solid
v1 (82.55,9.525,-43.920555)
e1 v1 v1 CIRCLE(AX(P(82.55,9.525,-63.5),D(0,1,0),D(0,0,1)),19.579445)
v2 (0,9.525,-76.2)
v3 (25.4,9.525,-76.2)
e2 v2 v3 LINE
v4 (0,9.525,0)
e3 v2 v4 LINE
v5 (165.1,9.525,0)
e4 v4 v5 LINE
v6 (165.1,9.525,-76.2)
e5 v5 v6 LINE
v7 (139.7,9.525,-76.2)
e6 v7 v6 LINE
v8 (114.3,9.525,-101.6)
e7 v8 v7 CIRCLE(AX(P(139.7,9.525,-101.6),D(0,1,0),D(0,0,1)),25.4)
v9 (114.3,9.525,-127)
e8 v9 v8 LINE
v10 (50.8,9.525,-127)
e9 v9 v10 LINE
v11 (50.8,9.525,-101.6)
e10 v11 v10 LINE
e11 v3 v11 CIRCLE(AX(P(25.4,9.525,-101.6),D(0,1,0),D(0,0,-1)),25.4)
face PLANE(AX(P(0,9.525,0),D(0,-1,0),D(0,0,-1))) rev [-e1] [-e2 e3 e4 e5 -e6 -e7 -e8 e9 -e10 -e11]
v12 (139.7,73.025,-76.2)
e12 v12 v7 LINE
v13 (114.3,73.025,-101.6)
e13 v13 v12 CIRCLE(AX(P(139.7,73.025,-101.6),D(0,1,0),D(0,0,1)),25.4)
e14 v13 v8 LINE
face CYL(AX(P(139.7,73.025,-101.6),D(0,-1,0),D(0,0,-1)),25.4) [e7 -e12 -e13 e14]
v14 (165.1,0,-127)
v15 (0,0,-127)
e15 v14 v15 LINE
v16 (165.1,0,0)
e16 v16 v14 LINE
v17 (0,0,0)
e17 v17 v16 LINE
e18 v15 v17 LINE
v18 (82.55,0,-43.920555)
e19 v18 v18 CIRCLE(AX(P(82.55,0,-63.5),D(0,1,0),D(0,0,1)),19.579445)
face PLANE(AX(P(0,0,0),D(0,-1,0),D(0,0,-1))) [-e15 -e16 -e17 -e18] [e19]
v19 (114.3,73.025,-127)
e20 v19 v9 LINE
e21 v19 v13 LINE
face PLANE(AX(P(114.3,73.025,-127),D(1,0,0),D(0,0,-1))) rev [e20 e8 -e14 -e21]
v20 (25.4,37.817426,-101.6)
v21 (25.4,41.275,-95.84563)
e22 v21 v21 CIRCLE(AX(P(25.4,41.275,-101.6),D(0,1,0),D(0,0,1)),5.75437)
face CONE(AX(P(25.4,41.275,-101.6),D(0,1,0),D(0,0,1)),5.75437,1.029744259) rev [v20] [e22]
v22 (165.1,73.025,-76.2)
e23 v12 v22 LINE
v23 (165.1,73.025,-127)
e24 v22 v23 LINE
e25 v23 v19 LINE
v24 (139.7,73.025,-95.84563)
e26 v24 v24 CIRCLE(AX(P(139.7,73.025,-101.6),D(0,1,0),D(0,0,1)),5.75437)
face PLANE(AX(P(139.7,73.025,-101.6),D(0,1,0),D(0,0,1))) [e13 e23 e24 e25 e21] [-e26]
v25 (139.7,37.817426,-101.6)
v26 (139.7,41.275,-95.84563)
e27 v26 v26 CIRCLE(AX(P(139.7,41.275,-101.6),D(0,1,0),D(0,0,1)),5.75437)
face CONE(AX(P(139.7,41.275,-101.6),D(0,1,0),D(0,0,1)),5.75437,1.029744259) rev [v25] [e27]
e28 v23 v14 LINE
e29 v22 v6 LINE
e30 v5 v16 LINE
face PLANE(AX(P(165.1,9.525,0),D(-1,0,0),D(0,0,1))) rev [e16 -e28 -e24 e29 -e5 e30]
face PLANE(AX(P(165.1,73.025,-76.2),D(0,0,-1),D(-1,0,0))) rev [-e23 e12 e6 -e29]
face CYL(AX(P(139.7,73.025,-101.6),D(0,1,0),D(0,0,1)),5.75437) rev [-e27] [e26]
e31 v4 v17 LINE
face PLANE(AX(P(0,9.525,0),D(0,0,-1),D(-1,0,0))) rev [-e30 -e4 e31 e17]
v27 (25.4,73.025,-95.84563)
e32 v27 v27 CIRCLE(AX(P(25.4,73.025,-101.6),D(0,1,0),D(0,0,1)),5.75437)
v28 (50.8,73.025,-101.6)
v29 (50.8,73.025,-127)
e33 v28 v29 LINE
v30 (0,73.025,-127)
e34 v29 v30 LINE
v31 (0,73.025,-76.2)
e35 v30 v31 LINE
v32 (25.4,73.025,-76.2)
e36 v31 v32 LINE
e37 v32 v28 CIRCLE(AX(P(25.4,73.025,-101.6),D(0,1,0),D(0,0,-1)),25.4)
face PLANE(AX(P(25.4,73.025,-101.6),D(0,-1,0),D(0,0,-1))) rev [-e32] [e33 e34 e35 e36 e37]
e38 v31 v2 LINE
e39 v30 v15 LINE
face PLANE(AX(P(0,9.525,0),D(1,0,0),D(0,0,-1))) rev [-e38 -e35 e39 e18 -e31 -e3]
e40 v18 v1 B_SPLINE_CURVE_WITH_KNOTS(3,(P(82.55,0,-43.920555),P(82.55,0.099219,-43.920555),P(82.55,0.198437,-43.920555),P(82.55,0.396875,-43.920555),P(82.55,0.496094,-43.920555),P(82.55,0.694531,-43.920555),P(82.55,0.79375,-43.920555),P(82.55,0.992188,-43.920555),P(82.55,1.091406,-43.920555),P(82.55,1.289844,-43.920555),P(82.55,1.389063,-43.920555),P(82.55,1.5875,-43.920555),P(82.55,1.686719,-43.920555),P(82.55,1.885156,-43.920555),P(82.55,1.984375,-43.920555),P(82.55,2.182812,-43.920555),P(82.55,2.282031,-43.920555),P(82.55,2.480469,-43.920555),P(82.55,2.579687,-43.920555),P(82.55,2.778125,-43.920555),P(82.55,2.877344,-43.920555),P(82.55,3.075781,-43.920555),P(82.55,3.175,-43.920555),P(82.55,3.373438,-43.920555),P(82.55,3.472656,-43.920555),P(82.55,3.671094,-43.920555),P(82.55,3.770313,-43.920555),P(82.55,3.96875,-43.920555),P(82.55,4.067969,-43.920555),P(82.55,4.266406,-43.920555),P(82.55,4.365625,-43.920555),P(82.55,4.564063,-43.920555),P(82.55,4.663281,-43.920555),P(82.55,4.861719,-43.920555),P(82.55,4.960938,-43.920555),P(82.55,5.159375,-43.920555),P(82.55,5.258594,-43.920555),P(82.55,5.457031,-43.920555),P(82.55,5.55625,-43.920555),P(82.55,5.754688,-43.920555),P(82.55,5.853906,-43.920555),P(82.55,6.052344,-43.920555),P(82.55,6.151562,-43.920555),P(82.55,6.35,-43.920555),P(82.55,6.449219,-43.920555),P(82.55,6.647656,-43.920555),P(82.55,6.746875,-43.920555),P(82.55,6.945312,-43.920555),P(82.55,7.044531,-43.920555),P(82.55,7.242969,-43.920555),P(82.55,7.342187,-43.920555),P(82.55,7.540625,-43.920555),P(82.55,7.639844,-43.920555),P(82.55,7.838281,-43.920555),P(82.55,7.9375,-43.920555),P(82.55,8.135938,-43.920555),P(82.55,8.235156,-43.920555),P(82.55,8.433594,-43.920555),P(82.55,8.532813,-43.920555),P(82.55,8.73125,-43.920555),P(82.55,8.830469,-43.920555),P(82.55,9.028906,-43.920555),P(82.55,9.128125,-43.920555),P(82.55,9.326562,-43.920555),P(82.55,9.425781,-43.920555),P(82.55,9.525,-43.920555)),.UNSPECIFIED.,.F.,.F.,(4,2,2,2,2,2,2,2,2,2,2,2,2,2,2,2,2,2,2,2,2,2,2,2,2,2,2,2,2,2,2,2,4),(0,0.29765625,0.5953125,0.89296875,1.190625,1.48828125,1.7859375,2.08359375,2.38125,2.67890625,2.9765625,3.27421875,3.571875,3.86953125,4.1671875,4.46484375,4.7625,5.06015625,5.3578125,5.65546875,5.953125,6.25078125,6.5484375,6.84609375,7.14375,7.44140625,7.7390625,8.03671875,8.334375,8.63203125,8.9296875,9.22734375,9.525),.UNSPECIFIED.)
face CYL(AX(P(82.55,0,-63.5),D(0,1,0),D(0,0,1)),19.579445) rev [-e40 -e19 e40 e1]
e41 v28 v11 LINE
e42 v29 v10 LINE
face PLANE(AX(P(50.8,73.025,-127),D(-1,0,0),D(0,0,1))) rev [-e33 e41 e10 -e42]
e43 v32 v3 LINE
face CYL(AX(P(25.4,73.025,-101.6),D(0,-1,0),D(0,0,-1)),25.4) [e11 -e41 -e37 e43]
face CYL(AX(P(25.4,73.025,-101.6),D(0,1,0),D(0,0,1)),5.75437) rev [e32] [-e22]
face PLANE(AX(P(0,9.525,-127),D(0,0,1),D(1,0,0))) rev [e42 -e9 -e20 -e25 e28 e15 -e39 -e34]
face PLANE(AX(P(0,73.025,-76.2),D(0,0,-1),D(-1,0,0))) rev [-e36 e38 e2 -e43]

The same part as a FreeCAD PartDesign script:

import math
import FreeCAD as App
import Part
import Sketcher
Q = App.Units.Quantity

doc = App.newDocument("Part")
params = doc.addObject("Spreadsheet::Sheet", "Params")
for row, (alias, value) in enumerate([
    ("sketch1_height", "5 in"),
    ("sketch1_width", "6.5 in"),
    ("pad1_length", "0.375 in"),
    ("sketch3_radius", "1 in"),
    ("sketch3_width", "2 in"),
    ("pad2_length", "2.5 in"),
    ("hole_diameter", "0.4531 in"),
    ("hole_depth", "1.25 in"),
], start=1):
    params.set(f"A{row}", alias)
    params.set(f"B{row}", "=" + value)
    params.setAlias(f"B{row}", alias)

body = doc.addObject("PartDesign::Body", "Body")

sketch1 = body.newObject("Sketcher::SketchObject", "Sketch")
sketch1.AttachmentSupport = (doc.getObject("XZ_Plane"), [""])
sketch1.MapMode = "FlatFace"
sketch1.addGeometry(Part.LineSegment(App.Vector(0, -127, 0), App.Vector(0, 0, 0)), False)
sketch1.addGeometry(Part.LineSegment(App.Vector(0, 0, 0), App.Vector(165, 0, 0)), False)
sketch1.addGeometry(Part.LineSegment(App.Vector(165, 0, 0), App.Vector(165, -127, 0)), False)
sketch1.addGeometry(Part.LineSegment(App.Vector(165, -127, 0), App.Vector(0, -127, 0)), False)
sketch1.addConstraint(Sketcher.Constraint("Coincident", 0, 2, 1, 1))
sketch1.addConstraint(Sketcher.Constraint("Coincident", 1, 2, 2, 1))
sketch1.addConstraint(Sketcher.Constraint("Coincident", 2, 2, 3, 1))
sketch1.addConstraint(Sketcher.Constraint("Coincident", 3, 2, 0, 1))
sketch1.addConstraint(Sketcher.Constraint("Vertical", 0))
sketch1.addConstraint(Sketcher.Constraint("Horizontal", 1))
sketch1.addConstraint(Sketcher.Constraint("Vertical", 2))
sketch1.addConstraint(Sketcher.Constraint("Horizontal", 3))
sketch1.addConstraint(Sketcher.Constraint("Coincident", 0, 2, -1, 1))
sketch1.addConstraint(Sketcher.Constraint("DistanceY", 0, 1, 0, 2, Q("5 in")))
sketch1.addConstraint(Sketcher.Constraint("DistanceX", 1, 1, 1, 2, Q("6.5 in")))
sketch1.setExpression("Constraints[9]", "Params.sketch1_height")
sketch1.setExpression("Constraints[10]", "Params.sketch1_width")
pad1 = body.newObject("PartDesign::Pad", "Pad")
pad1.Profile = sketch1
pad1.setExpression("Length", "Params.pad1_length")
pad1.Reversed = True

sketch2 = body.newObject("Sketcher::SketchObject", "Sketch001")
sketch2.AttachmentSupport = (doc.getObject("XZ_Plane"), [""])
sketch2.MapMode = "FlatFace"
sketch2.AttachmentOffset = App.Placement(App.Vector(0, 0, -0.375 * 25.4), App.Rotation())
sketch2.addGeometry(Part.Circle(App.Vector(83, -64, 0), App.Vector(0, 0, 1), 20), False)
sketch2.addConstraint(Sketcher.Constraint("DistanceY", 0, 3, -1, 1, Q("2.5 in")))
sketch2.addConstraint(Sketcher.Constraint("DistanceX", -1, 1, 0, 3, Q("3.25 in")))
sketch2.addConstraint(Sketcher.Constraint("Diameter", 0, 39.15889))
pocket1 = body.newObject("PartDesign::Pocket", "Pocket")
pocket1.Profile = sketch2
pocket1.Type = "ThroughAll"
pocket1.Reversed = True

sketch3 = body.newObject("Sketcher::SketchObject", "Sketch002")
sketch3.AttachmentSupport = (doc.getObject("XZ_Plane"), [""])
sketch3.MapMode = "FlatFace"
sketch3.AttachmentOffset = App.Placement(App.Vector(0, 0, -0.375 * 25.4), App.Rotation())
sketch3.addGeometry(Part.LineSegment(App.Vector(51, -127, 0), App.Vector(0, -127, 0)), False)
sketch3.addGeometry(Part.LineSegment(App.Vector(0, -127, 0), App.Vector(0, -76, 0)), False)
sketch3.addGeometry(Part.LineSegment(App.Vector(0, -76, 0), App.Vector(25, -76, 0)), False)
sketch3.addGeometry(Part.ArcOfCircle(Part.Circle(App.Vector(25, -102, 0), App.Vector(0, 0, 1), 25), math.radians(0), math.radians(90)), False)
sketch3.addGeometry(Part.LineSegment(App.Vector(51, -102, 0), App.Vector(51, -127, 0)), False)
sketch3.addGeometry(Part.LineSegment(App.Vector(165, -127, 0), App.Vector(114, -127, 0)), False)
sketch3.addGeometry(Part.LineSegment(App.Vector(114, -127, 0), App.Vector(114, -102, 0)), False)
sketch3.addGeometry(Part.ArcOfCircle(Part.Circle(App.Vector(140, -102, 0), App.Vector(0, 0, 1), 25), math.radians(90), math.radians(180)), False)
sketch3.addGeometry(Part.LineSegment(App.Vector(140, -76, 0), App.Vector(165, -76, 0)), False)
sketch3.addGeometry(Part.LineSegment(App.Vector(165, -76, 0), App.Vector(165, -127, 0)), False)
sketch3.addConstraint(Sketcher.Constraint("Coincident", 0, 2, 1, 1))
sketch3.addConstraint(Sketcher.Constraint("Coincident", 1, 2, 2, 1))
sketch3.addConstraint(Sketcher.Constraint("Tangent", 2, 2, 3, 2))
sketch3.addConstraint(Sketcher.Constraint("Tangent", 3, 1, 4, 1))
sketch3.addConstraint(Sketcher.Constraint("Coincident", 4, 2, 0, 1))
sketch3.addConstraint(Sketcher.Constraint("Coincident", 5, 2, 6, 1))
sketch3.addConstraint(Sketcher.Constraint("Tangent", 6, 2, 7, 2))
sketch3.addConstraint(Sketcher.Constraint("Tangent", 7, 1, 8, 1))
sketch3.addConstraint(Sketcher.Constraint("Coincident", 8, 2, 9, 1))
sketch3.addConstraint(Sketcher.Constraint("Coincident", 9, 2, 5, 1))
sketch3.addConstraint(Sketcher.Constraint("Horizontal", 0))
sketch3.addConstraint(Sketcher.Constraint("Vertical", 1))
sketch3.addConstraint(Sketcher.Constraint("Horizontal", 2))
sketch3.addConstraint(Sketcher.Constraint("Vertical", 4))
sketch3.addConstraint(Sketcher.Constraint("Horizontal", 5))
sketch3.addConstraint(Sketcher.Constraint("Vertical", 6))
sketch3.addConstraint(Sketcher.Constraint("Horizontal", 8))
sketch3.addConstraint(Sketcher.Constraint("Vertical", 9))
sketch3.addConstraint(Sketcher.Constraint("Equal", 3, 7))
sketch3.addConstraint(Sketcher.Constraint("PointOnObject", 0, 2, -2))
sketch3.addConstraint(Sketcher.Constraint("Horizontal", 3, 3, 7, 3))
sketch3.addConstraint(Sketcher.Constraint("Horizontal", 4, 2, 5, 2))
sketch3.addConstraint(Sketcher.Constraint("Equal", 0, 5))
sketch3.addConstraint(Sketcher.Constraint("Equal", 5, 1))
sketch3.addConstraint(Sketcher.Constraint("Radius", 3, Q("1 in")))
sketch3.addConstraint(Sketcher.Constraint("DistanceX", 0, 2, 0, 1, Q("2 in")))
sketch3.addConstraint(Sketcher.Constraint("DistanceY", 3, 3, -1, 1, Q("4 in")))
sketch3.addConstraint(Sketcher.Constraint("DistanceX", -1, 1, 7, 3, Q("5.5 in")))
sketch3.setExpression("Constraints[24]", "Params.sketch3_radius")
sketch3.setExpression("Constraints[25]", "Params.sketch3_width")
pad2 = body.newObject("PartDesign::Pad", "Pad001")
pad2.Profile = sketch3
pad2.setExpression("Length", "Params.pad2_length")
pad2.Reversed = True

sketch4 = body.newObject("Sketcher::SketchObject", "Sketch003")
sketch4.AttachmentSupport = (doc.getObject("XZ_Plane"), [""])
sketch4.MapMode = "FlatFace"
sketch4.AttachmentOffset = App.Placement(App.Vector(0, 0, -2.875 * 25.4), App.Rotation())
sketch4.addGeometry(Part.Circle(App.Vector(25, -102, 0), App.Vector(0, 0, 1), 6), False)
sketch4.addGeometry(Part.Circle(App.Vector(140, -102, 0), App.Vector(0, 0, 1), 6), False)
sketch4.addConstraint(Sketcher.Constraint("Equal", 0, 1))
sketch4.addConstraint(Sketcher.Constraint("Horizontal", 0, 3, 1, 3))
sketch4.addConstraint(Sketcher.Constraint("DistanceX", -1, 1, 0, 3, Q("1 in")))
sketch4.addConstraint(Sketcher.Constraint("DistanceY", 0, 3, -1, 1, Q("4 in")))
sketch4.addConstraint(Sketcher.Constraint("Diameter", 0, Q("0.4531 in")))
sketch4.addConstraint(Sketcher.Constraint("DistanceX", -1, 1, 1, 3, Q("5.5 in")))
doc.recompute()
hole = body.newObject("PartDesign::Hole", "Hole")
hole.Profile = sketch4
hole.ThreadType = "None"
hole.setExpression("Diameter", "Params.hole_diameter")
hole.DepthType = "Dimension"
hole.setExpression("Depth", "Params.hole_depth")
hole.DrillPoint = "Angled"
hole.DrillPointAngle = 118
hole.Reversed = True

doc.recompute()
